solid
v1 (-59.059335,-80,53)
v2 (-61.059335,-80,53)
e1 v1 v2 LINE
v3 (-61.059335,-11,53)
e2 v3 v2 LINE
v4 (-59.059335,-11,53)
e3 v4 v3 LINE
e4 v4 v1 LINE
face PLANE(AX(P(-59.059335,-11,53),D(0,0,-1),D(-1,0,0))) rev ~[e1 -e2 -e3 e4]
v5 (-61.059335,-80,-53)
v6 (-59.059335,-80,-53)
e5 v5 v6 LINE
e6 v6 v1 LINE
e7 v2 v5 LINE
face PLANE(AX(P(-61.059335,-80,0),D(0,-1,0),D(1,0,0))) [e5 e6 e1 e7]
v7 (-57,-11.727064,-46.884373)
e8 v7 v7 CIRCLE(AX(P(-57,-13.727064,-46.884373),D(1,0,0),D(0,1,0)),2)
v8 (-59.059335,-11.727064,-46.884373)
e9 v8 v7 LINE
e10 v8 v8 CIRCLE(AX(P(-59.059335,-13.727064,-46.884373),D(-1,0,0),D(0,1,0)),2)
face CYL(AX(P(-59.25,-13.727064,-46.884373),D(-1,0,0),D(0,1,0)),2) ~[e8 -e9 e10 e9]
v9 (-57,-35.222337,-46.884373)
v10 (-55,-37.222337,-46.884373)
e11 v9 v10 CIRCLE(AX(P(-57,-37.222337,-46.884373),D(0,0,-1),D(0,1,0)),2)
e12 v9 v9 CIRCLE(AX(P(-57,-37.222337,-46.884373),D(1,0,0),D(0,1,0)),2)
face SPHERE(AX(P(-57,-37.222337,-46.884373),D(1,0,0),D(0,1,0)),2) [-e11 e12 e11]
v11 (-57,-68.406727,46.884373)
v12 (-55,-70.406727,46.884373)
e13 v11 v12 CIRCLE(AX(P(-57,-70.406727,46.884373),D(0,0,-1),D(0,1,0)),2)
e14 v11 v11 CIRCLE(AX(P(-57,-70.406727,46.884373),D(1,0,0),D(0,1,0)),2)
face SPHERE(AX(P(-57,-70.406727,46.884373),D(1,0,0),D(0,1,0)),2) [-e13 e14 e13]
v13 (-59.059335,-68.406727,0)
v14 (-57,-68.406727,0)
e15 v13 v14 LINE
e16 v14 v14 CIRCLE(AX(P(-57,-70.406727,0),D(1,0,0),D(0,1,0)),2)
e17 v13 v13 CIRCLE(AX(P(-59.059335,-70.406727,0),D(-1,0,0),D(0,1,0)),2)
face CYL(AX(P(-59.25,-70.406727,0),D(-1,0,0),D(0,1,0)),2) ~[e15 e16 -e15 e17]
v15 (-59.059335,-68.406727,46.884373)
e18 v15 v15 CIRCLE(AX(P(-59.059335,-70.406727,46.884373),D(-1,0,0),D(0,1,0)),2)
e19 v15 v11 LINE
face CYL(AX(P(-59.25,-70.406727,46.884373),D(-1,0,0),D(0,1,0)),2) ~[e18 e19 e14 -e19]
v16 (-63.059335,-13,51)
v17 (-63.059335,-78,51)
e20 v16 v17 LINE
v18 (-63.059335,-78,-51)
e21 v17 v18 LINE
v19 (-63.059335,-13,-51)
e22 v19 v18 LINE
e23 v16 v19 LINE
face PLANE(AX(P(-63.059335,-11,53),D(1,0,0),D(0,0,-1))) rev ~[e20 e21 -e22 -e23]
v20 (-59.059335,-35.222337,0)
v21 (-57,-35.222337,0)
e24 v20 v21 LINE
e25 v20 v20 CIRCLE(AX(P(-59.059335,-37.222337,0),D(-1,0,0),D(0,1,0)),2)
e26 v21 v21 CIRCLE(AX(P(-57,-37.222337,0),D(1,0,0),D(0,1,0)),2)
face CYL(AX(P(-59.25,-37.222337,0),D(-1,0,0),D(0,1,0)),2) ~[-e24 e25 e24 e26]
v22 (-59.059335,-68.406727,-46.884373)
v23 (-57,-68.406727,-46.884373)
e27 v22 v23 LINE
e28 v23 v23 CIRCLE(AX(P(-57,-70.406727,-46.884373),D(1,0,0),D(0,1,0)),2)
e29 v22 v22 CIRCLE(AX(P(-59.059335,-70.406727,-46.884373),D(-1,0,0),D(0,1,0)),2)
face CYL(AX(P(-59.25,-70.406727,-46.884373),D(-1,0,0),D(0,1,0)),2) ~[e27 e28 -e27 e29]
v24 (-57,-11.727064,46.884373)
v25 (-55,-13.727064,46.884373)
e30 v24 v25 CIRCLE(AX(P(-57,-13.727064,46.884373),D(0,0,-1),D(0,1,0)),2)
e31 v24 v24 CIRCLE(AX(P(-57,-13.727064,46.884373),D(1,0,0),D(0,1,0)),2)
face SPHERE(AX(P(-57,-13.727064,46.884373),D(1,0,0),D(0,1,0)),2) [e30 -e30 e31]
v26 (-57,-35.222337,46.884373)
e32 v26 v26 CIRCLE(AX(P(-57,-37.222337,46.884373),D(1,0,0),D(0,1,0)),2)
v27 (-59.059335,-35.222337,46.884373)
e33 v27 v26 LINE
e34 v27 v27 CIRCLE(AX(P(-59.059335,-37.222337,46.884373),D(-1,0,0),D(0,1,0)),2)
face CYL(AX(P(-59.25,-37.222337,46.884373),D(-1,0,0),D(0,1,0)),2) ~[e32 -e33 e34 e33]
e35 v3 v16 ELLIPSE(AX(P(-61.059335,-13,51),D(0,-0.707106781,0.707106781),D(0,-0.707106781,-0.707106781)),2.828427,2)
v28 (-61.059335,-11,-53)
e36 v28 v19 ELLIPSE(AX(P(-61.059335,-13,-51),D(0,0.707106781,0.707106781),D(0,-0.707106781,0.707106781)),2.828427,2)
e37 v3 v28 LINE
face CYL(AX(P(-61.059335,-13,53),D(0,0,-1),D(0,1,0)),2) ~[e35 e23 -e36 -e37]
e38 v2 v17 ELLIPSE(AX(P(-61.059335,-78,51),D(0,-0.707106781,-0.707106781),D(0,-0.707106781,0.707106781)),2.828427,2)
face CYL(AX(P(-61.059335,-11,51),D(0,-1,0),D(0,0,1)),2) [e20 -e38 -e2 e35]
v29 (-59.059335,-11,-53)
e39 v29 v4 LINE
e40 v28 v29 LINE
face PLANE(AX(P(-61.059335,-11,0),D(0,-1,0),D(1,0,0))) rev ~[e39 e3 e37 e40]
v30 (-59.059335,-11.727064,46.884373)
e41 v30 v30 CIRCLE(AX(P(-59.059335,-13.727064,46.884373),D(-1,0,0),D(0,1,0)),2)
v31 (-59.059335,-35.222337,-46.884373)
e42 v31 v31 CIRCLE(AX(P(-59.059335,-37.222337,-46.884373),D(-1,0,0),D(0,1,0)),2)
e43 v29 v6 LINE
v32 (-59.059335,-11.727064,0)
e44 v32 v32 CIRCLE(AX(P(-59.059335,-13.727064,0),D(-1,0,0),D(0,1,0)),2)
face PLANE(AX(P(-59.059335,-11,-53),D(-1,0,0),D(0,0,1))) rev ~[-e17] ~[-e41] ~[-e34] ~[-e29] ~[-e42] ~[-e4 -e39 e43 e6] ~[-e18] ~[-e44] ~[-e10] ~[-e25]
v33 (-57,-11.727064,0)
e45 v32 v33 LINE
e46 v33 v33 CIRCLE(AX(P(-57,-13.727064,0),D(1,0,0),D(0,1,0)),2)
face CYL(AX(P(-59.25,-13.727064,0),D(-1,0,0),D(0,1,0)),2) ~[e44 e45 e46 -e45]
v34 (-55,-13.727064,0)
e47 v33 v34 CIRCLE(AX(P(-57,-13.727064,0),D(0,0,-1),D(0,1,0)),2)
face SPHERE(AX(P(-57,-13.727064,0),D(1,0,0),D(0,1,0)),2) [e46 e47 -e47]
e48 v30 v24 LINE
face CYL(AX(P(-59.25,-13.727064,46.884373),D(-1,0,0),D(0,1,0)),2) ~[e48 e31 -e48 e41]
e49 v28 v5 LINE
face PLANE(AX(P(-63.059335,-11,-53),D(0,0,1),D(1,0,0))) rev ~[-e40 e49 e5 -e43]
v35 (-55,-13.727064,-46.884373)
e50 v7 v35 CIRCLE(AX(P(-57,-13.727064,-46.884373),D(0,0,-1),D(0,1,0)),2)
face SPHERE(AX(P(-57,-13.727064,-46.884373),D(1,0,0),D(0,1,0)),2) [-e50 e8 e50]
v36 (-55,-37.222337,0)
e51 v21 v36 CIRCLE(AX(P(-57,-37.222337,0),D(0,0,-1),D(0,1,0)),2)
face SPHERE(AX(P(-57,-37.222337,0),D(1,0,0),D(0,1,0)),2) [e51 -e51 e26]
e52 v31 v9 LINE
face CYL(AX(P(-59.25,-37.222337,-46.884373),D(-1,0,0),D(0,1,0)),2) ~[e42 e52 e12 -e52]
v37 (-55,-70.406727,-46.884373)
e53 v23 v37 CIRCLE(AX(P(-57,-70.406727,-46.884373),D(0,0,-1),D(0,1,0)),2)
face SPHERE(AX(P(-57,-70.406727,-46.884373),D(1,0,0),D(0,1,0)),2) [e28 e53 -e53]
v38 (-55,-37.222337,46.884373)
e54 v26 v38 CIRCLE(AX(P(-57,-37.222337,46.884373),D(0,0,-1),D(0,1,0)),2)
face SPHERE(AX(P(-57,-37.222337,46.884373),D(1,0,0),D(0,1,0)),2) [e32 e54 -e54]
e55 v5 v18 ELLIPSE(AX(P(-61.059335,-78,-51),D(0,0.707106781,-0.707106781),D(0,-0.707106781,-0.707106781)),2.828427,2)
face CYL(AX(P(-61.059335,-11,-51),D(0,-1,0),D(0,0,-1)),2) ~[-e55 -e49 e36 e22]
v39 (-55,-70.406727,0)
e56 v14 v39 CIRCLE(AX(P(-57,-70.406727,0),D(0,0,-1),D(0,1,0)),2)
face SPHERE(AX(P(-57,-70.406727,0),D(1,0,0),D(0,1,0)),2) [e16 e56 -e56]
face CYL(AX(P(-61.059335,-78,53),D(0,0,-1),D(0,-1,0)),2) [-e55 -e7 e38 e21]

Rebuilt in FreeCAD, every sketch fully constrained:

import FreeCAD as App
import Part
import Sketcher
from FreeCAD import Vector


def edges_at(feature, points):
    """Names of the edges that pass closest to the given points."""
    edges = feature.Shape.Edges
    near = lambda p: min(range(len(edges)), key=lambda i: edges[i].distToShape(Part.Vertex(*p))[0])
    return sorted({f"Edge{near(p) + 1}" for p in points})


def add_polygon(sketch, points):
    """Adds a closed chain of lines whose ends are joined by coincident constraints."""
    first, n = sketch.GeometryCount, len(points)
    for a, b in zip(points, points[1:] + points[:1]):
        sketch.addGeometry(Part.LineSegment(App.Vector(*a, 0), App.Vector(*b, 0)), False)
    for i in range(n):
        sketch.addConstraint(Sketcher.Constraint("Coincident", first + i, 2, first + (i + 1) % n, 1))

doc = App.newDocument("Part")
params = doc.addObject("Spreadsheet::Sheet", "Params")
for row, (alias, value) in enumerate([
    ("sketch1_width", "4 mm"),
    ("sketch1_height", "106 mm"),
    ("pad1_length", "69 mm"),
    ("sketch2_diameter", "4 mm"),
    ("pad2_length", "4.25 mm"),
    ("fillet_radius", "2 mm"),
    ("fillet2_radius", "2 mm"),
], start=1):
    params.set(f"A{row}", alias)
    params.set(f"B{row}", "=" + value)
    params.setAlias(f"B{row}", alias)

body = doc.addObject("PartDesign::Body", "Body")

# Sketch on XZ plane
sketch1 = body.newObject("Sketcher::SketchObject", "Sketch")
sketch1.AttachmentSupport = (doc.getObject("XZ_Plane"), [""])
sketch1.MapMode = "FlatFace"
sketch1.AttachmentOffset = App.Placement(Vector(0, 0, 11), App.Rotation())
add_polygon(sketch1, [(-59.1, 53), (-63.1, 53), (-63.1, -53), (-59.1, -53)])  # lines 0-3
sketch1.addConstraint([
    Sketcher.Constraint("Horizontal", 0),
    Sketcher.Constraint("Vertical", 1),
    Sketcher.Constraint("Horizontal", 2),
    Sketcher.Constraint("Vertical", 3),
    Sketcher.Constraint("DistanceX", 0, 2, 0, 1, 4.0),
    Sketcher.Constraint("DistanceY", 1, 2, 1, 1, 106.0),
    Sketcher.Constraint("DistanceY", -1, 1, 0, 2, 53.0),
    Sketcher.Constraint("DistanceX", 0, 2, -1, 1, 63.059335),
])
sketch1.setExpression("Constraints[8]", "Params.sketch1_width")
sketch1.setExpression("Constraints[9]", "Params.sketch1_height")
pad1 = body.newObject("PartDesign::Pad", "Pad")
pad1.Profile = sketch1
pad1.setExpression("Length", "Params.pad1_length")

# Sketch on YZ plane
sketch2 = body.newObject("Sketcher::SketchObject", "Sketch001")
sketch2.AttachmentSupport = (doc.getObject("YZ_Plane"), [""])
sketch2.MapMode = "FlatFace"
sketch2.AttachmentOffset = App.Placement(Vector(0, 0, -59.25), App.Rotation())
sketch2.addGeometry([
    Part.Circle(Vector(-70.4, -46.9, 0), Vector(0, 0, 1), 2),  # 0
    Part.Circle(Vector(-70.4, 0, 0), Vector(0, 0, 1), 2),  # 1
    Part.Circle(Vector(-70.4, 46.9, 0), Vector(0, 0, 1), 2),  # 2
    Part.Circle(Vector(-37.2, 46.9, 0), Vector(0, 0, 1), 2),  # 3
    Part.Circle(Vector(-37.2, 0, 0), Vector(0, 0, 1), 2),  # 4
    Part.Circle(Vector(-37.2, -46.9, 0), Vector(0, 0, 1), 2),  # 5
    Part.Circle(Vector(-13.7, 46.9, 0), Vector(0, 0, 1), 2),  # 6
    Part.Circle(Vector(-13.7, 0, 0), Vector(0, 0, 1), 2),  # 7
    Part.Circle(Vector(-13.7, -46.9, 0), Vector(0, 0, 1), 2),  # 8
], False)
sketch2.addConstraint([
    Sketcher.Constraint("Equal", 0, 1),
    Sketcher.Constraint("Equal", 1, 2),
    Sketcher.Constraint("Equal", 2, 3),
    Sketcher.Constraint("Equal", 3, 4),
    Sketcher.Constraint("Equal", 4, 5),
    Sketcher.Constraint("Equal", 5, 6),
    Sketcher.Constraint("Equal", 6, 7),
    Sketcher.Constraint("Equal", 7, 8),
    Sketcher.Constraint("Symmetric", 0, 3, 2, 3, -1),
    Sketcher.Constraint("Symmetric", 3, 3, 5, 3, -1),
    Sketcher.Constraint("Symmetric", 6, 3, 8, 3, -1),
    Sketcher.Constraint("PointOnObject", 1, 3, -1),
    Sketcher.Constraint("PointOnObject", 4, 3, -1),
    Sketcher.Constraint("PointOnObject", 7, 3, -1),
    Sketcher.Constraint("Horizontal", 2, 3, 3, 3),
    Sketcher.Constraint("Horizontal", 3, 3, 6, 3),
    Sketcher.Constraint("Vertical", 0, 3, 1, 3),
    Sketcher.Constraint("Vertical", 3, 3, 4, 3),
    Sketcher.Constraint("Vertical", 6, 3, 7, 3),
    Sketcher.Constraint("Diameter", 0, 4.0),
    Sketcher.Constraint("DistanceX", 2, 3, 3, 3, 33.184391),
    Sketcher.Constraint("DistanceX", 0, 3, -1, 1, 70.406727),
    Sketcher.Constraint("DistanceY", 0, 3, -1, 1, 46.884373),
    Sketcher.Constraint("DistanceX", 6, 3, -1, 1, 13.727064),
])
sketch2.setExpression("Constraints[19]", "Params.sketch2_diameter")
pad2 = body.newObject("PartDesign::Pad", "Pad001")
pad2.Profile = sketch2
pad2.setExpression("Length", "Params.pad2_length")
doc.recompute()

fillet = body.newObject("PartDesign::Fillet", "Fillet")
fillet.Base = (pad2, edges_at(pad2, [
    (-55, -72.407, 0),
    (-55, -72.407, 46.884),
    (-55, -72.407, -46.884),
    (-55, -39.222, -46.884),
    (-55, -39.222, 0),
    (-55, -39.222, 46.884),
    (-55, -15.727, 46.884),
    (-55, -15.727, 0),
    (-55, -15.727, -46.884),
]))
fillet.setExpression("Radius", "Params.fillet_radius")
doc.recompute()

fillet2 = body.newObject("PartDesign::Fillet", "Fillet001")
fillet2.Base = (fillet, edges_at(fillet, [
    (-63.059, -45.5, 53),
    (-63.059, -45.5, -53),
    (-63.059, -11, 0),
    (-63.059, -80, 0),
]))
fillet2.setExpression("Radius", "Params.fillet2_radius")

doc.recompute()
